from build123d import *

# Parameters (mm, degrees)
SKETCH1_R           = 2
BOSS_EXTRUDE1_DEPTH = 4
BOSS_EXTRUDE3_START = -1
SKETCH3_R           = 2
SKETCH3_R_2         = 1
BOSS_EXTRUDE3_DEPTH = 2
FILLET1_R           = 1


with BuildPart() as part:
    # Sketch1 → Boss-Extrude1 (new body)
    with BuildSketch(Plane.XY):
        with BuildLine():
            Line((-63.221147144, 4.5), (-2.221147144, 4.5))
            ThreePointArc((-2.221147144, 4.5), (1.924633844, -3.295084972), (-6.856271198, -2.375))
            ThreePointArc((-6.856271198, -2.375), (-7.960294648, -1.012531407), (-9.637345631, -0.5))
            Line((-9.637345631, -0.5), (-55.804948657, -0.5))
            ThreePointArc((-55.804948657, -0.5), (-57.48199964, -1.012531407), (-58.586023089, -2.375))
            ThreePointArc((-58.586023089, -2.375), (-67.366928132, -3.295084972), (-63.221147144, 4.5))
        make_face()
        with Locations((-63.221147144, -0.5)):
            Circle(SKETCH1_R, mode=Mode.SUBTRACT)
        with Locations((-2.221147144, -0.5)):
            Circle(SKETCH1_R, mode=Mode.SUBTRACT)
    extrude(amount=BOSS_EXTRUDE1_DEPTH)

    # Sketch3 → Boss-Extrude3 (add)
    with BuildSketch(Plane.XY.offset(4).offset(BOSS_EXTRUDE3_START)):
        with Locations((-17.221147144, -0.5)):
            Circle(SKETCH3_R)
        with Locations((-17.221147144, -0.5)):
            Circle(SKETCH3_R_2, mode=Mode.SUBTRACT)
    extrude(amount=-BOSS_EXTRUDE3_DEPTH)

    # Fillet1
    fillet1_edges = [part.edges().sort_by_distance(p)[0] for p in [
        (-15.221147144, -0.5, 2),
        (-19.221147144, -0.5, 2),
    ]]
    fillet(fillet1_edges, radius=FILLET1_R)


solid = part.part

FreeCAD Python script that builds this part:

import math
import FreeCAD as App
import Part
import Sketcher

V = App.Vector
Q = App.Units.Quantity


def edges_at(feature, points):
    """Names of the edges that pass closest to the given points."""
    edges = feature.Shape.Edges
    near = lambda p: min(range(len(edges)), key=lambda i: edges[i].distToShape(Part.Vertex(*p))[0])
    return sorted({f"Edge{near(p) + 1}" for p in points})

doc = App.newDocument("Part")
params = doc.addObject("Spreadsheet::Sheet", "Params")
for row, (alias, value) in enumerate([
    ("sketch1_diameter", "4 mm"),
    ("sketch1_radius", "5 mm"),
    ("sketch1_radius2", "3 mm"),
    ("sketch1_width", "61 mm"),
    ("pad1_length", "4 mm"),
    ("sketch2_diameter", "4 mm"),
    ("sketch2_diameter2", "2 mm"),
    ("pad2_length", "2 mm"),
    ("fillet_radius", "1 mm"),
], start=1):
    params.set(f"A{row}", alias)
    params.set(f"B{row}", "=" + value)
    params.setAlias(f"B{row}", alias)

body = doc.addObject("PartDesign::Body", "Body")

sketch1 = body.newObject("Sketcher::SketchObject", "Sketch")
sketch1.AttachmentSupport = (doc.getObject("XY_Plane"), [""])
sketch1.MapMode = "FlatFace"
sketch1.addGeometry(Part.LineSegment(V(-2.221147, 4.5, 0), V(-63.221147, 4.5, 0)), False)
sketch1.addGeometry(Part.ArcOfCircle(Part.Circle(V(-63.221147, -0.5, 0), V(0, 0, 1), 5), math.radians(90), math.radians(337.975687)), False)
sketch1.addGeometry(Part.ArcOfCircle(Part.Circle(V(-55.804949, -3.5, 0), V(0, 0, 1), 3), math.radians(90), math.radians(157.975687)), False)
sketch1.addGeometry(Part.LineSegment(V(-55.804949, -0.5, 0), V(-9.637346, -0.5, 0)), False)
sketch1.addGeometry(Part.ArcOfCircle(Part.Circle(V(-9.637346, -3.5, 0), V(0, 0, 1), 3), math.radians(22.024313), math.radians(90)), False)
sketch1.addGeometry(Part.ArcOfCircle(Part.Circle(V(-2.221147, -0.5, 0), V(0, 0, 1), 5), math.radians(-157.975687), math.radians(90)), False)
sketch1.addGeometry(Part.Circle(V(-2.221147, -0.5, 0), V(0, 0, 1), 2), False)
sketch1.addGeometry(Part.Circle(V(-63.221147, -0.5, 0), V(0, 0, 1), 2), False)
sketch1.addConstraint(Sketcher.Constraint("Tangent", 0, 2, 1, 1))
sketch1.addConstraint(Sketcher.Constraint("Tangent", 1, 2, 2, 2))
sketch1.addConstraint(Sketcher.Constraint("Tangent", 2, 1, 3, 1))
sketch1.addConstraint(Sketcher.Constraint("Tangent", 3, 2, 4, 2))
sketch1.addConstraint(Sketcher.Constraint("Tangent", 4, 1, 5, 1))
sketch1.addConstraint(Sketcher.Constraint("Tangent", 5, 2, 0, 1))
sketch1.addConstraint(Sketcher.Constraint("Horizontal", 0))
sketch1.addConstraint(Sketcher.Constraint("Horizontal", 3))
sketch1.addConstraint(Sketcher.Constraint("Coincident", 6, 3, 5, 3))
sketch1.addConstraint(Sketcher.Constraint("Coincident", 7, 3, 1, 3))
sketch1.addConstraint(Sketcher.Constraint("Equal", 2, 4))
sketch1.addConstraint(Sketcher.Constraint("Equal", 1, 5))
sketch1.addConstraint(Sketcher.Constraint("Equal", 6, 7))
sketch1.addConstraint(Sketcher.Constraint("Horizontal", 7, 3, 2, 1))
sketch1.addConstraint(Sketcher.Constraint("Diameter", 6, Q("4 mm")))
sketch1.addConstraint(Sketcher.Constraint("Radius", 1, Q("5 mm")))
sketch1.addConstraint(Sketcher.Constraint("Radius", 2, Q("3 mm")))
sketch1.addConstraint(Sketcher.Constraint("DistanceX", 0, 2, 0, 1, Q("61 mm")))
sketch1.addConstraint(Sketcher.Constraint("DistanceY", 1, 3, -1, 1, Q("0.5 mm")))
sketch1.addConstraint(Sketcher.Constraint("DistanceX", 2, 3, -1, 1, Q("55.804949 mm")))
sketch1.setExpression("Constraints[14]", "Params.sketch1_diameter")
sketch1.setExpression("Constraints[15]", "Params.sketch1_radius")
sketch1.setExpression("Constraints[16]", "Params.sketch1_radius2")
sketch1.setExpression("Constraints[17]", "Params.sketch1_width")
pad1 = body.newObject("PartDesign::Pad", "Pad")
pad1.Profile = sketch1
pad1.setExpression("Length", "Params.pad1_length")

sketch2 = body.newObject("Sketcher::SketchObject", "Sketch001")
sketch2.AttachmentSupport = (doc.getObject("XY_Plane"), [""])
sketch2.MapMode = "FlatFace"
sketch2.AttachmentOffset = App.Placement(V(0, 0, 3), App.Rotation())
sketch2.addGeometry(Part.Circle(V(-17.221147, -0.5, 0), V(0, 0, 1), 2), False)
sketch2.addGeometry(Part.Circle(V(-17.221147, -0.5, 0), V(0, 0, 1), 1), False)
sketch2.addConstraint(Sketcher.Constraint("Coincident", 1, 3, 0, 3))
sketch2.addConstraint(Sketcher.Constraint("Diameter", 0, Q("4 mm")))
sketch2.addConstraint(Sketcher.Constraint("Diameter", 1, Q("2 mm")))
sketch2.addConstraint(Sketcher.Constraint("DistanceY", 0, 3, -1, 1, Q("0.5 mm")))
sketch2.addConstraint(Sketcher.Constraint("DistanceX", 0, 3, -1, 1, Q("17.221147 mm")))
sketch2.setExpression("Constraints[1]", "Params.sketch2_diameter")
sketch2.setExpression("Constraints[2]", "Params.sketch2_diameter2")
pad2 = body.newObject("PartDesign::Pad", "Pad001")
pad2.Profile = sketch2
pad2.setExpression("Length", "Params.pad2_length")
pad2.Reversed = True
doc.recompute()

fillet = body.newObject("PartDesign::Fillet", "Fillet")
fillet.Base = (pad2, edges_at(pad2, [(-15.221, -0.5, 2), (-19.221, -0.5, 2)]))
fillet.setExpression("Radius", "Params.fillet_radius")

doc.recompute()
